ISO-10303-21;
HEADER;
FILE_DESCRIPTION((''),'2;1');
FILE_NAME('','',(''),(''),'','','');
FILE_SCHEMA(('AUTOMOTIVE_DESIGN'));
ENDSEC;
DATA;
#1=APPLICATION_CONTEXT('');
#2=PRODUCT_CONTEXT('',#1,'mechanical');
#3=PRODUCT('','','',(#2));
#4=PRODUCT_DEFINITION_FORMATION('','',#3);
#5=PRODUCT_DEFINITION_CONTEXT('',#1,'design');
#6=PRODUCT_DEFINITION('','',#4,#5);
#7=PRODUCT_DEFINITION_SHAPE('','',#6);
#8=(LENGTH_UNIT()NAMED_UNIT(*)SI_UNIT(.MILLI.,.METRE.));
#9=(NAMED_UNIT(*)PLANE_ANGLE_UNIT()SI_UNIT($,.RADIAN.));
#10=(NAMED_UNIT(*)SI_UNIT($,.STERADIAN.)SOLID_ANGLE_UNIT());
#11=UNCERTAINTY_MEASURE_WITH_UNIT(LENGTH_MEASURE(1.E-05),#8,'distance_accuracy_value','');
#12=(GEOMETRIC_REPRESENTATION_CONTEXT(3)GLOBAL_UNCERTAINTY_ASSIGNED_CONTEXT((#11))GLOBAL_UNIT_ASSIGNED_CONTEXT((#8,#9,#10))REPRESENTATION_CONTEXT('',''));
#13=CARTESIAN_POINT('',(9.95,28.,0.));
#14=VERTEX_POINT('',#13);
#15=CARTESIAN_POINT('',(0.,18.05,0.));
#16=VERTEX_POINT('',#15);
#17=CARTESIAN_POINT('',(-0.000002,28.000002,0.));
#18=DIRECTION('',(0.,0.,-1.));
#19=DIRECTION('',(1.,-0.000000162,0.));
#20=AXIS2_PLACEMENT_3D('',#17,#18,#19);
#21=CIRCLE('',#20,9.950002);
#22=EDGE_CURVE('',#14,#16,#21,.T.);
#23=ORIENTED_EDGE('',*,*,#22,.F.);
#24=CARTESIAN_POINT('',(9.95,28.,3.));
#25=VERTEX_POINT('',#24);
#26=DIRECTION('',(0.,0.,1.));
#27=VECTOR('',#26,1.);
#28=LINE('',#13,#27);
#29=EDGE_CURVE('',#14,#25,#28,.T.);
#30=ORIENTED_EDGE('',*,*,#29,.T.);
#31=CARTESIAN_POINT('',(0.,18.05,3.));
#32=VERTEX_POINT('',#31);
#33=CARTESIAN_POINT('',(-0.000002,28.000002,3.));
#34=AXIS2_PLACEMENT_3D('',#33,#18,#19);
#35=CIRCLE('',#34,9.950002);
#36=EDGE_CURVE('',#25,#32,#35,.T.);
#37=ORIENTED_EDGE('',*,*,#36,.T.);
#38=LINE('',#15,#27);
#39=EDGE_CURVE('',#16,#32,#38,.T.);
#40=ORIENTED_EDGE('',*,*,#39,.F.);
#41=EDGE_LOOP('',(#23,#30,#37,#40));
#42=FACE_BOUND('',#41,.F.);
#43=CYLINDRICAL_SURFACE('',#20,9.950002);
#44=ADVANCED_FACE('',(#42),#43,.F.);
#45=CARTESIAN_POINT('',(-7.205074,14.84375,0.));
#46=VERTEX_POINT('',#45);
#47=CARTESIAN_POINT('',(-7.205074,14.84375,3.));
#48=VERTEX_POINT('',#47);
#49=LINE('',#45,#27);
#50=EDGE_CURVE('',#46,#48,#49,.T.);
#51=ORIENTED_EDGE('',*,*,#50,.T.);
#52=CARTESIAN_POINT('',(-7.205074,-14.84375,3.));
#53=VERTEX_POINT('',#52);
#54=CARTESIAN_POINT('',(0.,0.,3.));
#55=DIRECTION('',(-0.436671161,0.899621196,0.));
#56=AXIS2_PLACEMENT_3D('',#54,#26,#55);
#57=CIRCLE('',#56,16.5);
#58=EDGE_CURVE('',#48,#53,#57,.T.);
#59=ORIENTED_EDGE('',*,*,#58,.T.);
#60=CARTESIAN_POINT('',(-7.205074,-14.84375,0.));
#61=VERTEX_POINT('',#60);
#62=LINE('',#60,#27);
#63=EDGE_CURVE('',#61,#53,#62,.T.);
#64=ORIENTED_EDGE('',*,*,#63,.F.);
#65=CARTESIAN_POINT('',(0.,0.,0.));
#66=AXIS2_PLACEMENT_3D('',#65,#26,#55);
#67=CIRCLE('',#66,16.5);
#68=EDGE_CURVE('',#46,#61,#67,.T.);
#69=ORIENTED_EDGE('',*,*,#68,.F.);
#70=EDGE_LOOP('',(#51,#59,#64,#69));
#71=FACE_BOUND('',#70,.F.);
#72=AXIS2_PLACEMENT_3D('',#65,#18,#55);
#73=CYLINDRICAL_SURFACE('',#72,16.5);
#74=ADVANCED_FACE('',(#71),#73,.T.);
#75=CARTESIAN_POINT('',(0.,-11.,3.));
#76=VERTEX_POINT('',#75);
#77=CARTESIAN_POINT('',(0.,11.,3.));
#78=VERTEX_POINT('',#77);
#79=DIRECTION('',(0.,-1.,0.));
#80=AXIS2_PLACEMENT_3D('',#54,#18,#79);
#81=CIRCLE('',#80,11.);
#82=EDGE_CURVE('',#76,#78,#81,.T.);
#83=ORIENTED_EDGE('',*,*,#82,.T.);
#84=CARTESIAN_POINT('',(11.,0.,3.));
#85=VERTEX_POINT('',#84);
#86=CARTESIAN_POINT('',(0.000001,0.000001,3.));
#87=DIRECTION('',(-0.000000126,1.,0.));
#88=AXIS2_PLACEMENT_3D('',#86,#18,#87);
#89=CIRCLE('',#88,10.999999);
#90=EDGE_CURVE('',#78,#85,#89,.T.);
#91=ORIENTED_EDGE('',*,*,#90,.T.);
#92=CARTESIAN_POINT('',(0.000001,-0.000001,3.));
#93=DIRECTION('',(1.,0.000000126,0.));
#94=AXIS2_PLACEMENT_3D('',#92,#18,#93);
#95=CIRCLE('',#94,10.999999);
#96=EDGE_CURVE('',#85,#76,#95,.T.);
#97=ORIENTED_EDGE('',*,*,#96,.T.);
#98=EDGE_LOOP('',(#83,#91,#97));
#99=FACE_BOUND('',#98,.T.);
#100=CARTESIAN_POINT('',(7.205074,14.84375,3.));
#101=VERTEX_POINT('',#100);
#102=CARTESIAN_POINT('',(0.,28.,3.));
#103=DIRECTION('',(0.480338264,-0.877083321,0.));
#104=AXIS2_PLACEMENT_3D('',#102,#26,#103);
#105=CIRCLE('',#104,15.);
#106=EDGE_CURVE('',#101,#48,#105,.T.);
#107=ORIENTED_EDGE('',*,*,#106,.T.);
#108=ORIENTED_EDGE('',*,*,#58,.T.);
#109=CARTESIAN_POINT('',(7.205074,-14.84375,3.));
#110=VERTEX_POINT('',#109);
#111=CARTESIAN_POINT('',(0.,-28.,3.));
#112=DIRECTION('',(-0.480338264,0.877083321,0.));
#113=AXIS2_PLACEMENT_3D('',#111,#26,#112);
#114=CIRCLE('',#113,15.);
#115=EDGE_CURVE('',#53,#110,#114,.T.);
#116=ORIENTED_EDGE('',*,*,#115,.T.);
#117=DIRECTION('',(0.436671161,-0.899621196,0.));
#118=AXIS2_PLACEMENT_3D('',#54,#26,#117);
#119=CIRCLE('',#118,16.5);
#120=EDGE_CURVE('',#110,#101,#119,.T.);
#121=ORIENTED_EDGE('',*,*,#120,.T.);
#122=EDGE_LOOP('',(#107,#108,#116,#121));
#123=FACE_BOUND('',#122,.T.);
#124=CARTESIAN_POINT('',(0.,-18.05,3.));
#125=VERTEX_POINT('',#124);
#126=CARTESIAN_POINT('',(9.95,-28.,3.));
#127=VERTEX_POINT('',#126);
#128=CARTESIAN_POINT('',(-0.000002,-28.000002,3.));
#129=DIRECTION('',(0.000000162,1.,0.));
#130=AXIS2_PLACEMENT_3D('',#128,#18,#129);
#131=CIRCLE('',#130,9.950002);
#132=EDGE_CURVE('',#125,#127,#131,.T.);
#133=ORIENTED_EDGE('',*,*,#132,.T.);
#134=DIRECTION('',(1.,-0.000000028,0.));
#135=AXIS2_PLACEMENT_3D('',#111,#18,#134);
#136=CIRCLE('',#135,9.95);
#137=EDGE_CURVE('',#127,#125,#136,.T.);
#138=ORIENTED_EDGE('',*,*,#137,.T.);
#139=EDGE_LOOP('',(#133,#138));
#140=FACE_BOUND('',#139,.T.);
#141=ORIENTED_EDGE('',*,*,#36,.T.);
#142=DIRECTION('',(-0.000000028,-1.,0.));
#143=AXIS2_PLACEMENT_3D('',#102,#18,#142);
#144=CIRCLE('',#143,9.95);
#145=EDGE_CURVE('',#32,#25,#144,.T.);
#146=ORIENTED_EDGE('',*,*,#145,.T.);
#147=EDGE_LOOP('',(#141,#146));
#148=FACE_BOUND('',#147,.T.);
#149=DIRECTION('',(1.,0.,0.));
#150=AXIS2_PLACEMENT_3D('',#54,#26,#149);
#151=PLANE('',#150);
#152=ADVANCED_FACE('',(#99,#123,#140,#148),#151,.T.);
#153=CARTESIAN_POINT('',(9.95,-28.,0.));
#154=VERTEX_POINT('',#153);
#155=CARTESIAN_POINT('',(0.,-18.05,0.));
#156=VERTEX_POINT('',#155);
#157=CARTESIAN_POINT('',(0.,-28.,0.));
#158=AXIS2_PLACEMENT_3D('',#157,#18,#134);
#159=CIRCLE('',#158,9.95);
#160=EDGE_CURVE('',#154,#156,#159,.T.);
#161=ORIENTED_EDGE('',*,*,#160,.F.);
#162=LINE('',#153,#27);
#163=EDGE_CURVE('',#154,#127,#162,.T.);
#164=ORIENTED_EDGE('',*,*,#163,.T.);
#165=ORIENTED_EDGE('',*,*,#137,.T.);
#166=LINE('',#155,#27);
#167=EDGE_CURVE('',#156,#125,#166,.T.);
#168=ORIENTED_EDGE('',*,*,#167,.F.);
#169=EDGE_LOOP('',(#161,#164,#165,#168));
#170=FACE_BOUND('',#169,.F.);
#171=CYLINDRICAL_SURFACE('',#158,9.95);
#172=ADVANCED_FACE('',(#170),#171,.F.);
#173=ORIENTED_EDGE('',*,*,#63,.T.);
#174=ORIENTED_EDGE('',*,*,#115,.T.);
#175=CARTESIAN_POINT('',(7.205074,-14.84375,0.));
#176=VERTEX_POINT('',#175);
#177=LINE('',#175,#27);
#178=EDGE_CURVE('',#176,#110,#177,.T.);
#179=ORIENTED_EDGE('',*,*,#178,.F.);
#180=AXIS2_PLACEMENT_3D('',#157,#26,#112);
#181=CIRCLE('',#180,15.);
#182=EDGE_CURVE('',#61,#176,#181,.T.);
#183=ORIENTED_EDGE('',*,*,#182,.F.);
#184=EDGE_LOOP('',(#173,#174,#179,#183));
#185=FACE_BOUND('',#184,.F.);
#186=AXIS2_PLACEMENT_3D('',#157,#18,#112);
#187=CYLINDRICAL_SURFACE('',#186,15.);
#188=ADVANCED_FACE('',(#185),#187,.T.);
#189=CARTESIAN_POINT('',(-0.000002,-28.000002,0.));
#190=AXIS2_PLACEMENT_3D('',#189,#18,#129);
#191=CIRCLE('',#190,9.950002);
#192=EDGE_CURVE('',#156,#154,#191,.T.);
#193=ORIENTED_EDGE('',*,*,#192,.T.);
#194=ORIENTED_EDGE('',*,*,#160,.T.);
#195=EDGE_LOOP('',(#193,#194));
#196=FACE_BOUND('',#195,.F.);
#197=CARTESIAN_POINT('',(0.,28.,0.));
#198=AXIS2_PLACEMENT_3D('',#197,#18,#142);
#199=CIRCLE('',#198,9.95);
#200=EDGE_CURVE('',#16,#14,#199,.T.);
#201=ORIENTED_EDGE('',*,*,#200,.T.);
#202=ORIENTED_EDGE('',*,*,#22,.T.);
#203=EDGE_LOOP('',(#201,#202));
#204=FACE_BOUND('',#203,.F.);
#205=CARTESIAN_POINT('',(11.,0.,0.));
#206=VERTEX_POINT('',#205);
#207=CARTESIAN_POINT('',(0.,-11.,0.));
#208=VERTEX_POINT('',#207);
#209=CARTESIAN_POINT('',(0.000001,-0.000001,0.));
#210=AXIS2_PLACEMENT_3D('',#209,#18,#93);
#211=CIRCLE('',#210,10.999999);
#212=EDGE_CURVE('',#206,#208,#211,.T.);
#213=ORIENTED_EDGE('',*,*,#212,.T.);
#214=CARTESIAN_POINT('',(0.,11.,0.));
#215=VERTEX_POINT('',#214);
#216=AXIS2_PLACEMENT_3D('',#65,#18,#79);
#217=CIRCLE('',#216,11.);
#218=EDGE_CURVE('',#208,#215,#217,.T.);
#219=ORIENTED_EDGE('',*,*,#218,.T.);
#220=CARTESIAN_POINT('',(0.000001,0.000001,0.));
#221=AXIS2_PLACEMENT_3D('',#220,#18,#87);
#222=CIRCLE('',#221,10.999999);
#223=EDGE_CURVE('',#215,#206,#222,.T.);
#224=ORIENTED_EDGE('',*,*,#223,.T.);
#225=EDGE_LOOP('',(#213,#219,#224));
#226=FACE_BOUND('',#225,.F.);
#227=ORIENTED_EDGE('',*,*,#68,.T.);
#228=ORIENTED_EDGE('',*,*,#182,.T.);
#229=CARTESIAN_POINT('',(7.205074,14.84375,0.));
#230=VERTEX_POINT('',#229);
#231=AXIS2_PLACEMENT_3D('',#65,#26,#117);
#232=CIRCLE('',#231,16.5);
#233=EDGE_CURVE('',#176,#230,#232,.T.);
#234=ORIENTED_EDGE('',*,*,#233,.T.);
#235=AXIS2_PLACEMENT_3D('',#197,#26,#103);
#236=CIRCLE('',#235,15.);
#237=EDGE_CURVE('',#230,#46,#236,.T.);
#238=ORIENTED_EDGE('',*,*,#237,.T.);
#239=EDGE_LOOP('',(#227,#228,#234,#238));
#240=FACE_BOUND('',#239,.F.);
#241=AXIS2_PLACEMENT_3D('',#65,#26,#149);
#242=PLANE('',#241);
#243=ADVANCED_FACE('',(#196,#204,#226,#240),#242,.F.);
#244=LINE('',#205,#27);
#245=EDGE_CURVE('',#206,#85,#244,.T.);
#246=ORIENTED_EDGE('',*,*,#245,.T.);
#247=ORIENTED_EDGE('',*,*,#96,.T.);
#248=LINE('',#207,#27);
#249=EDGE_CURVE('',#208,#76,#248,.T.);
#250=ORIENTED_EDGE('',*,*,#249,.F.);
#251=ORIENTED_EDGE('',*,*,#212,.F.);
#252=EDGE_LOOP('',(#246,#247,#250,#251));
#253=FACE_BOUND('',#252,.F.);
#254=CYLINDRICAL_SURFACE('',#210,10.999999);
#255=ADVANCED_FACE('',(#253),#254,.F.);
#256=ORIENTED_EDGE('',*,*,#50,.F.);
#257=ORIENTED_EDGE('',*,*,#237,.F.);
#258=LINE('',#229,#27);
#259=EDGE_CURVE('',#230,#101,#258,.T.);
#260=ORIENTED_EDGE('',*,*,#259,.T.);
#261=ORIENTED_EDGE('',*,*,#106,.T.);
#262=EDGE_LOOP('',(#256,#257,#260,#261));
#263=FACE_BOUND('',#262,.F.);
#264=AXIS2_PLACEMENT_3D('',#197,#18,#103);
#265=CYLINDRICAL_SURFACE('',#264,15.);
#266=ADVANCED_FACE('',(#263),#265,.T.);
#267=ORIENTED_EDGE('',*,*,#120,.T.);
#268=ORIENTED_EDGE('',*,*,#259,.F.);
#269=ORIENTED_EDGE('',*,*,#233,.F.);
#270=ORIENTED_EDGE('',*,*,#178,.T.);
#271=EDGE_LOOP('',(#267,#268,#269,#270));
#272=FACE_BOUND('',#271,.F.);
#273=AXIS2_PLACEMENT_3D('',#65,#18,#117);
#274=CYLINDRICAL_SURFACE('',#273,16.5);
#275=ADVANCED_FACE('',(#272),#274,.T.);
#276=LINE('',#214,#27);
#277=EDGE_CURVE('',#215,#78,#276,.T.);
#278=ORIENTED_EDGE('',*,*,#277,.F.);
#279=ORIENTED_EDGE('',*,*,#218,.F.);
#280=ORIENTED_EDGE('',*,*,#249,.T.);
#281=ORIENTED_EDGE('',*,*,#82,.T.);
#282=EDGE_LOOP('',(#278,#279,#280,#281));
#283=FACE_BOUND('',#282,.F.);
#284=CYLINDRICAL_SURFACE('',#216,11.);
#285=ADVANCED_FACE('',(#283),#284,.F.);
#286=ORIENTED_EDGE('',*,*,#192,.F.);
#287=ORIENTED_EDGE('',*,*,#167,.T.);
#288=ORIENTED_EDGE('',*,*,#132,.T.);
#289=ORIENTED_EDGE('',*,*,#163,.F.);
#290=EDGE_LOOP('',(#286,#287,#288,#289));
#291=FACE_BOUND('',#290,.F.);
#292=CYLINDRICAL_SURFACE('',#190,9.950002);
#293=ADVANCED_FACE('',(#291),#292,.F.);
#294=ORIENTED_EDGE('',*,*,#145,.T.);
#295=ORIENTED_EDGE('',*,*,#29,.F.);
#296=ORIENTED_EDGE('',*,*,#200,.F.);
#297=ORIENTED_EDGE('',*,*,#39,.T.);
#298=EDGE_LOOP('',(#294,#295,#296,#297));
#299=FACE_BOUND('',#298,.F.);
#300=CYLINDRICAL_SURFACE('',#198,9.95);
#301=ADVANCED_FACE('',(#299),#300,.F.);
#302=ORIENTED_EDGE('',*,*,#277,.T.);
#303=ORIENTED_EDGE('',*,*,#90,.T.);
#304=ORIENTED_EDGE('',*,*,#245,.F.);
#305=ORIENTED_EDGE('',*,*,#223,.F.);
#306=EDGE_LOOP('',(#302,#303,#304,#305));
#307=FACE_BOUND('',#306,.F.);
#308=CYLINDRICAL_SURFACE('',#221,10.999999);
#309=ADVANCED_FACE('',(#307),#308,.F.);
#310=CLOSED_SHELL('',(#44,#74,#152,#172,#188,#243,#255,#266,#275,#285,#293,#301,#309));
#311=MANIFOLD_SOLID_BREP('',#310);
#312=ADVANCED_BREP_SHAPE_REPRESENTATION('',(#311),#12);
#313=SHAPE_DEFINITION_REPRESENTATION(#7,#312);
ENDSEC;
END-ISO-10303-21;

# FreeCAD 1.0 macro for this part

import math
import FreeCAD as App
import Part
import Sketcher

doc = App.newDocument("Part")
body = doc.addObject("PartDesign::Body", "Body")

# Sketch on XY plane
sketch1 = doc.addObject("Sketcher::SketchObject", "Sketch")
body.addObject(sketch1)
sketch1.AttachmentSupport = (doc.XY_Plane, [""])
sketch1.MapMode = "FlatFace"
sketch1.addGeometry([
    Part.ArcOfCircle(Part.Circle(App.Vector(0, 28, 0), App.Vector(0, 0, 1), 15), math.radians(-61), math.radians(241)),  # 0
    Part.ArcOfCircle(Part.Circle(App.Vector(0, 0, 0), App.Vector(0, 0, 1), 17), math.radians(116), math.radians(244)),  # 1
    Part.ArcOfCircle(Part.Circle(App.Vector(0, -28, 0), App.Vector(0, 0, 1), 15), math.radians(119), math.radians(421)),  # 2
    Part.ArcOfCircle(Part.Circle(App.Vector(0, 0, 0), App.Vector(0, 0, 1), 17), math.radians(-64), math.radians(64)),  # 3
    Part.ArcOfCircle(Part.Circle(App.Vector(0, -28, 0), App.Vector(0, 0, 1), 10), math.radians(0), math.radians(90)),  # 4
    Part.ArcOfCircle(Part.Circle(App.Vector(0, -28, 0), App.Vector(0, 0, 1), 10), math.radians(90), math.radians(360)),  # 5
    Part.ArcOfCircle(Part.Circle(App.Vector(0, 0, 0), App.Vector(0, 0, 1), 11), math.radians(90), math.radians(270)),  # 6
    Part.ArcOfCircle(Part.Circle(App.Vector(0, 0, 0), App.Vector(0, 0, 1), 11), math.radians(0), math.radians(90)),  # 7
    Part.ArcOfCircle(Part.Circle(App.Vector(0, 0, 0), App.Vector(0, 0, 1), 11), math.radians(-90), math.radians(0)),  # 8
    Part.ArcOfCircle(Part.Circle(App.Vector(0, 28, 0), App.Vector(0, 0, 1), 10), math.radians(0), math.radians(270)),  # 9
    Part.ArcOfCircle(Part.Circle(App.Vector(0, 28, 0), App.Vector(0, 0, 1), 10), math.radians(-90), math.radians(0)),  # 10
], False)
sketch1.addConstraint([
    Sketcher.Constraint("Coincident", 0, 2, 1, 1),
    Sketcher.Constraint("Coincident", 1, 2, 2, 1),
    Sketcher.Constraint("Coincident", 2, 2, 3, 1),
    Sketcher.Constraint("Coincident", 3, 2, 0, 1),
    Sketcher.Constraint("Tangent", 4, 1, 5, 2),
    Sketcher.Constraint("Coincident", 5, 1, 4, 2),
    Sketcher.Constraint("Tangent", 6, 1, 7, 2),
    Sketcher.Constraint("Tangent", 7, 1, 8, 2),
    Sketcher.Constraint("Tangent", 8, 1, 6, 2),
    Sketcher.Constraint("Tangent", 9, 1, 10, 2),
    Sketcher.Constraint("Coincident", 10, 1, 9, 2),
    Sketcher.Constraint("Coincident", 1, 3, -1, 1),
    Sketcher.Constraint("Coincident", 3, 3, -1, 1),
    Sketcher.Constraint("Coincident", 6, 3, -1, 1),
    Sketcher.Constraint("Coincident", 4, 3, 2, 3),
    Sketcher.Constraint("Coincident", 9, 3, 0, 3),
    Sketcher.Constraint("Equal", 0, 2),
    Sketcher.Constraint("Equal", 1, 3),
    Sketcher.Constraint("Equal", 5, 9),
    Sketcher.Constraint("Symmetric", 0, 3, 2, 3, -1, 1),
    Sketcher.Constraint("Symmetric", 4, 1, 9, 1, -1),
    Sketcher.Constraint("PointOnObject", 5, 1, -2),
    Sketcher.Constraint("PointOnObject", 6, 1, -2),
    Sketcher.Constraint("PointOnObject", 7, 1, -1),
    Sketcher.Constraint("PointOnObject", 8, 1, -2),
    Sketcher.Constraint("PointOnObject", 10, 1, -2),
    Sketcher.Constraint("Horizontal", 5, 3, 4, 1),
    Sketcher.Constraint("Radius", 0, 15.0),
    Sketcher.Constraint("Radius", 6, 11.0),
    Sketcher.Constraint("Radius", 1, 16.5),
    Sketcher.Constraint("Radius", 4, 9.950002),
    Sketcher.Constraint("DistanceY", -1, 1, 0, 3, 28.0),
])
pad1 = doc.addObject("PartDesign::Pad", "Pad")
body.addObject(pad1)
pad1.Profile = sketch1
pad1.Length = 3

doc.recompute()
